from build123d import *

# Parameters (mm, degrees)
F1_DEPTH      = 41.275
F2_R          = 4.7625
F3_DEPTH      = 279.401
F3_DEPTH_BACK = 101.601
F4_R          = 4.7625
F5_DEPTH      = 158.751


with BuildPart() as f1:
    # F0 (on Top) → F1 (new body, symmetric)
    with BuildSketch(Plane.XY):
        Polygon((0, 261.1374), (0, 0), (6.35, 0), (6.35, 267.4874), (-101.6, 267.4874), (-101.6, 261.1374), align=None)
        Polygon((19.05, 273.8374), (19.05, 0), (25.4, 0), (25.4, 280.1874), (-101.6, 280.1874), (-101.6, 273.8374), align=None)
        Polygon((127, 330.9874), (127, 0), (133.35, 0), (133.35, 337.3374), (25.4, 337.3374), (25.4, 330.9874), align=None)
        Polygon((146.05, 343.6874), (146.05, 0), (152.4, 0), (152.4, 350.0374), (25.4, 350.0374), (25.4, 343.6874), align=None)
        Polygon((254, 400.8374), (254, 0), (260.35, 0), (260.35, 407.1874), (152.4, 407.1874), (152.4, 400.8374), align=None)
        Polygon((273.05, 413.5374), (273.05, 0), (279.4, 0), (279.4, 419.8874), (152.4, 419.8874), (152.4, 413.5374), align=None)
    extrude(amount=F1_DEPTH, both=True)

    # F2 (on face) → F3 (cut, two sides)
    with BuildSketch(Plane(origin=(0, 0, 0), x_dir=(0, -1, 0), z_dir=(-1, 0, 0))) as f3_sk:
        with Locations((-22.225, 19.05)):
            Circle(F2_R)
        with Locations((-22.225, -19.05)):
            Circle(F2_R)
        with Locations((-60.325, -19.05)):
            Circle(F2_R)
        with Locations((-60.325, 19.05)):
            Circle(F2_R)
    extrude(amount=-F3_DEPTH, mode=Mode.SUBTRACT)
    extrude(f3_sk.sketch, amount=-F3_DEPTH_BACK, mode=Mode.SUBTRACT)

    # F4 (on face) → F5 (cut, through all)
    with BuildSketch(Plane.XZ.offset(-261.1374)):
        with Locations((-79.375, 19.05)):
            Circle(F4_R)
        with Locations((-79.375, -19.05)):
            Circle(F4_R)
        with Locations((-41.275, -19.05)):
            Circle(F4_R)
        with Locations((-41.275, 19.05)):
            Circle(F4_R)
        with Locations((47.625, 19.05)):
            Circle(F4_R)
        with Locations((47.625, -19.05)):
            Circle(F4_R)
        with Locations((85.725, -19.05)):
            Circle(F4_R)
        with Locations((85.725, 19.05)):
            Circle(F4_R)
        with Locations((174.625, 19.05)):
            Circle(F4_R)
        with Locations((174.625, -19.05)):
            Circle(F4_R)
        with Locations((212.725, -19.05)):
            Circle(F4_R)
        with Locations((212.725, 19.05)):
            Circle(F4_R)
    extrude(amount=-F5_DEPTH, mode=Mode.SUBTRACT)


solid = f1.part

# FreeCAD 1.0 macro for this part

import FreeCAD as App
import Part
import Sketcher
Q = App.Units.Quantity


def add_polygon(sketch, points):
    """Adds a closed chain of lines whose ends are joined by coincident constraints."""
    first, n = sketch.GeometryCount, len(points)
    for a, b in zip(points, points[1:] + points[:1]):
        sketch.addGeometry(Part.LineSegment(App.Vector(*a, 0), App.Vector(*b, 0)), False)
    for i in range(n):
        sketch.addConstraint(Sketcher.Constraint("Coincident", first + i, 2, first + (i + 1) % n, 1))

doc = App.newDocument("Part")
params = doc.addObject("Spreadsheet::Sheet", "Params")
for row, (alias, value) in enumerate([
    ("sketch1_width", "4 in"),
    ("sketch1_width2", "5 in"),
    ("sketch1_width3", "0.25 in"),
    ("sketch1_height", "10.281 in"),
    ("pad1_length", "3.25 in"),
    ("sketch2_diameter", "0.375 in"),
    ("pocket1_length", "279.401 mm"),
    ("pocket2_length", "101.601 mm"),
    ("sketch3_diameter", "0.375 in"),
], start=1):
    params.set(f"A{row}", alias)
    params.set(f"B{row}", "=" + value)
    params.setAlias(f"B{row}", alias)

body = doc.addObject("PartDesign::Body", "Body")
body.AllowCompound = True

# Sketch on XY plane
sketch1 = body.newObject("Sketcher::SketchObject", "Sketch")
sketch1.AttachmentSupport = (doc.getObject("XY_Plane"), [""])
sketch1.MapMode = "FlatFace"
add_polygon(sketch1, [(0, 261), (0, 0), (6, 0), (6, 267), (-102, 267), (-102, 261)])  # lines 0-5
add_polygon(sketch1, [(19, 274), (19, 0), (25, 0), (25, 280), (-102, 280), (-102, 274)])  # lines 6-11
add_polygon(sketch1, [(127, 331), (127, 0), (133, 0), (133, 337), (25, 337), (25, 331)])  # lines 12-17
add_polygon(sketch1, [(146, 344), (146, 0), (152, 0), (152, 350), (25, 350), (25, 344)])  # lines 18-23
add_polygon(sketch1, [(254, 401), (254, 0), (260, 0), (260, 407), (152, 407), (152, 401)])  # lines 24-29
add_polygon(sketch1, [(273, 414), (273, 0), (279, 0), (279, 420), (152, 420), (152, 414)])  # lines 30-35
sketch1.addConstraint([
    Sketcher.Constraint("Vertical", 0),
    Sketcher.Constraint("Horizontal", 1),
    Sketcher.Constraint("Vertical", 2),
    Sketcher.Constraint("Horizontal", 3),
    Sketcher.Constraint("Vertical", 4),
    Sketcher.Constraint("Horizontal", 5),
    Sketcher.Constraint("Vertical", 6),
    Sketcher.Constraint("Horizontal", 7),
    Sketcher.Constraint("Vertical", 8),
    Sketcher.Constraint("Horizontal", 9),
    Sketcher.Constraint("Vertical", 10),
    Sketcher.Constraint("Horizontal", 11),
    Sketcher.Constraint("Vertical", 12),
    Sketcher.Constraint("Horizontal", 13),
    Sketcher.Constraint("Vertical", 14),
    Sketcher.Constraint("Horizontal", 15),
    Sketcher.Constraint("Vertical", 16),
    Sketcher.Constraint("Horizontal", 17),
    Sketcher.Constraint("Vertical", 18),
    Sketcher.Constraint("Horizontal", 19),
    Sketcher.Constraint("Vertical", 20),
    Sketcher.Constraint("Horizontal", 21),
    Sketcher.Constraint("Vertical", 22),
    Sketcher.Constraint("Horizontal", 23),
    Sketcher.Constraint("Vertical", 24),
    Sketcher.Constraint("Horizontal", 25),
    Sketcher.Constraint("Vertical", 26),
    Sketcher.Constraint("Horizontal", 27),
    Sketcher.Constraint("Vertical", 28),
    Sketcher.Constraint("Horizontal", 29),
    Sketcher.Constraint("Vertical", 30),
    Sketcher.Constraint("Horizontal", 31),
    Sketcher.Constraint("Vertical", 32),
    Sketcher.Constraint("Horizontal", 33),
    Sketcher.Constraint("Vertical", 34),
    Sketcher.Constraint("Horizontal", 35),
    Sketcher.Constraint("Coincident", 0, 2, -1, 1),
    Sketcher.Constraint("PointOnObject", 6, 2, -1),
    Sketcher.Constraint("PointOnObject", 12, 2, -1),
    Sketcher.Constraint("PointOnObject", 18, 2, -1),
    Sketcher.Constraint("PointOnObject", 24, 2, -1),
    Sketcher.Constraint("PointOnObject", 30, 2, -1),
    Sketcher.Constraint("Vertical", 4, 2, 9, 2),
    Sketcher.Constraint("Vertical", 8, 2, 15, 2),
    Sketcher.Constraint("Vertical", 16, 2, 21, 2),
    Sketcher.Constraint("Vertical", 20, 2, 27, 2),
    Sketcher.Constraint("Vertical", 28, 2, 33, 2),
    Sketcher.Constraint("Equal", 1, 7),
    Sketcher.Constraint("Equal", 7, 13),
    Sketcher.Constraint("Equal", 3, 15),
    Sketcher.Constraint("Equal", 13, 19),
    Sketcher.Constraint("Equal", 9, 21),
    Sketcher.Constraint("Equal", 19, 25),
    Sketcher.Constraint("Equal", 15, 27),
    Sketcher.Constraint("Equal", 25, 31),
    Sketcher.Constraint("Equal", 21, 33),
    Sketcher.Constraint("Equal", 31, 4),
    Sketcher.Constraint("Equal", 4, 10),
    Sketcher.Constraint("Equal", 10, 16),
    Sketcher.Constraint("Equal", 16, 22),
    Sketcher.Constraint("Equal", 22, 28),
    Sketcher.Constraint("Equal", 28, 34),
    Sketcher.Constraint("DistanceX", 5, 1, 5, 2, Q("4 in")),
    Sketcher.Constraint("DistanceX", 9, 2, 9, 1, Q("5 in")),
    Sketcher.Constraint("DistanceY", 5, 2, 14, 2, Q("3 in")),
    Sketcher.Constraint("DistanceY", 8, 2, 16, 2, Q("2 in")),
    Sketcher.Constraint("DistanceY", 11, 2, 21, 2, Q("3 in")),
    Sketcher.Constraint("DistanceY", 17, 2, 26, 2, Q("3 in")),
    Sketcher.Constraint("DistanceY", 23, 2, 33, 2, Q("3 in")),
    Sketcher.Constraint("DistanceX", 1, 1, 1, 2, Q("0.25 in")),
    Sketcher.Constraint("DistanceY", 0, 2, 0, 1, Q("10.281 in")),
])
sketch1.setExpression("Constraints[98]", "Params.sketch1_width")
sketch1.setExpression("Constraints[99]", "Params.sketch1_width2")
sketch1.setExpression("Constraints[105]", "Params.sketch1_width3")
sketch1.setExpression("Constraints[106]", "Params.sketch1_height")
pad1 = body.newObject("PartDesign::Pad", "Pad")
pad1.Profile = sketch1
pad1.setExpression("Length", "Params.pad1_length")
pad1.Midplane = True

# Sketch on YZ plane
sketch2 = body.newObject("Sketcher::SketchObject", "Sketch001")
sketch2.AttachmentSupport = (doc.getObject("YZ_Plane"), [""])
sketch2.MapMode = "FlatFace"
sketch2.addGeometry([
    Part.Circle(App.Vector(22.2, 19.1, 0), App.Vector(0, 0, 1), 4.8),
    Part.Circle(App.Vector(22.2, -19.1, 0), App.Vector(0, 0, 1), 4.8),
    Part.Circle(App.Vector(60.3, -19.1, 0), App.Vector(0, 0, 1), 4.8),
    Part.Circle(App.Vector(60.3, 19.1, 0), App.Vector(0, 0, 1), 4.8),
], False)
sketch2.addConstraint([
    Sketcher.Constraint("Equal", 0, 1),
    Sketcher.Constraint("Equal", 1, 2),
    Sketcher.Constraint("Equal", 2, 3),
    Sketcher.Constraint("Symmetric", 0, 3, 1, 3, -1),
    Sketcher.Constraint("Symmetric", 2, 3, 3, 3, -1),
    Sketcher.Constraint("Horizontal", 1, 3, 2, 3),
    Sketcher.Constraint("Diameter", 0, Q("0.375 in")),
    Sketcher.Constraint("DistanceY", 1, 3, 0, 3, Q("1.5 in")),
    Sketcher.Constraint("DistanceX", 1, 3, 2, 3, Q("1.5 in")),
    Sketcher.Constraint("DistanceX", -1, 1, 0, 3, Q("0.875 in")),
])
sketch2.setExpression("Constraints[6]", "Params.sketch2_diameter")
pocket1 = body.newObject("PartDesign::Pocket", "Pocket")
pocket1.Profile = sketch2
pocket1.setExpression("Length", "Params.pocket1_length")
pocket1.Reversed = True
pocket2 = body.newObject("PartDesign::Pocket", "Pocket001")
pocket2.Profile = sketch2
pocket2.setExpression("Length", "Params.pocket2_length")
pocket2.Reversed = True

# Sketch on XZ plane
sketch3 = body.newObject("Sketcher::SketchObject", "Sketch002")
sketch3.AttachmentSupport = (doc.getObject("XZ_Plane"), [""])
sketch3.MapMode = "FlatFace"
sketch3.AttachmentOffset = App.Placement(App.Vector(0, 0, -10.281 * 25.4), App.Rotation())
sketch3.addGeometry([
    Part.Circle(App.Vector(-79.4, 19.1, 0), App.Vector(0, 0, 1), 4.8),  # 0
    Part.Circle(App.Vector(-79.4, -19.1, 0), App.Vector(0, 0, 1), 4.8),  # 1
    Part.Circle(App.Vector(-41.3, -19.1, 0), App.Vector(0, 0, 1), 4.8),  # 2
    Part.Circle(App.Vector(-41.3, 19.1, 0), App.Vector(0, 0, 1), 4.8),  # 3
    Part.Circle(App.Vector(47.6, 19.1, 0), App.Vector(0, 0, 1), 4.8),  # 4
    Part.Circle(App.Vector(47.6, -19.1, 0), App.Vector(0, 0, 1), 4.8),  # 5
    Part.Circle(App.Vector(85.7, -19.1, 0), App.Vector(0, 0, 1), 4.8),  # 6
    Part.Circle(App.Vector(85.7, 19.1, 0), App.Vector(0, 0, 1), 4.8),  # 7
    Part.Circle(App.Vector(174.6, 19.1, 0), App.Vector(0, 0, 1), 4.8),  # 8
    Part.Circle(App.Vector(174.6, -19.1, 0), App.Vector(0, 0, 1), 4.8),  # 9
    Part.Circle(App.Vector(212.7, -19.1, 0), App.Vector(0, 0, 1), 4.8),  # 10
    Part.Circle(App.Vector(212.7, 19.1, 0), App.Vector(0, 0, 1), 4.8),  # 11
], False)
sketch3.addConstraint([
    Sketcher.Constraint("Equal", 0, 1),
    Sketcher.Constraint("Equal", 1, 2),
    Sketcher.Constraint("Equal", 2, 3),
    Sketcher.Constraint("Equal", 3, 4),
    Sketcher.Constraint("Equal", 4, 5),
    Sketcher.Constraint("Equal", 5, 6),
    Sketcher.Constraint("Equal", 6, 7),
    Sketcher.Constraint("Equal", 7, 8),
    Sketcher.Constraint("Equal", 8, 9),
    Sketcher.Constraint("Equal", 9, 10),
    Sketcher.Constraint("Equal", 10, 11),
    Sketcher.Constraint("Symmetric", 0, 3, 1, 3, -1),
    Sketcher.Constraint("Symmetric", 2, 3, 3, 3, -1),
    Sketcher.Constraint("Symmetric", 4, 3, 5, 3, -1),
    Sketcher.Constraint("Symmetric", 6, 3, 7, 3, -1),
    Sketcher.Constraint("Symmetric", 8, 3, 9, 3, -1),
    Sketcher.Constraint("Symmetric", 10, 3, 11, 3, -1),
    Sketcher.Constraint("Horizontal", 1, 3, 2, 3),
    Sketcher.Constraint("Horizontal", 3, 3, 4, 3),
    Sketcher.Constraint("Horizontal", 5, 3, 6, 3),
    Sketcher.Constraint("Horizontal", 7, 3, 8, 3),
    Sketcher.Constraint("Horizontal", 9, 3, 10, 3),
    Sketcher.Constraint("Diameter", 0, Q("0.375 in")),
    Sketcher.Constraint("DistanceX", 0, 3, 4, 3, Q("5 in")),
    Sketcher.Constraint("DistanceX", 2, 3, 6, 3, Q("5 in")),
    Sketcher.Constraint("DistanceX", 4, 3, 8, 3, Q("5 in")),
    Sketcher.Constraint("DistanceX", 6, 3, 10, 3, Q("5 in")),
    Sketcher.Constraint("DistanceY", 1, 3, 0, 3, Q("1.5 in")),
    Sketcher.Constraint("DistanceX", 1, 3, 2, 3, Q("1.5 in")),
    Sketcher.Constraint("DistanceX", 0, 3, -1, 1, Q("3.125 in")),
])
sketch3.setExpression("Constraints[22]", "Params.sketch3_diameter")
pocket3 = body.newObject("PartDesign::Pocket", "Pocket002")
pocket3.Profile = sketch3
pocket3.Type = "ThroughAll"

doc.recompute()
